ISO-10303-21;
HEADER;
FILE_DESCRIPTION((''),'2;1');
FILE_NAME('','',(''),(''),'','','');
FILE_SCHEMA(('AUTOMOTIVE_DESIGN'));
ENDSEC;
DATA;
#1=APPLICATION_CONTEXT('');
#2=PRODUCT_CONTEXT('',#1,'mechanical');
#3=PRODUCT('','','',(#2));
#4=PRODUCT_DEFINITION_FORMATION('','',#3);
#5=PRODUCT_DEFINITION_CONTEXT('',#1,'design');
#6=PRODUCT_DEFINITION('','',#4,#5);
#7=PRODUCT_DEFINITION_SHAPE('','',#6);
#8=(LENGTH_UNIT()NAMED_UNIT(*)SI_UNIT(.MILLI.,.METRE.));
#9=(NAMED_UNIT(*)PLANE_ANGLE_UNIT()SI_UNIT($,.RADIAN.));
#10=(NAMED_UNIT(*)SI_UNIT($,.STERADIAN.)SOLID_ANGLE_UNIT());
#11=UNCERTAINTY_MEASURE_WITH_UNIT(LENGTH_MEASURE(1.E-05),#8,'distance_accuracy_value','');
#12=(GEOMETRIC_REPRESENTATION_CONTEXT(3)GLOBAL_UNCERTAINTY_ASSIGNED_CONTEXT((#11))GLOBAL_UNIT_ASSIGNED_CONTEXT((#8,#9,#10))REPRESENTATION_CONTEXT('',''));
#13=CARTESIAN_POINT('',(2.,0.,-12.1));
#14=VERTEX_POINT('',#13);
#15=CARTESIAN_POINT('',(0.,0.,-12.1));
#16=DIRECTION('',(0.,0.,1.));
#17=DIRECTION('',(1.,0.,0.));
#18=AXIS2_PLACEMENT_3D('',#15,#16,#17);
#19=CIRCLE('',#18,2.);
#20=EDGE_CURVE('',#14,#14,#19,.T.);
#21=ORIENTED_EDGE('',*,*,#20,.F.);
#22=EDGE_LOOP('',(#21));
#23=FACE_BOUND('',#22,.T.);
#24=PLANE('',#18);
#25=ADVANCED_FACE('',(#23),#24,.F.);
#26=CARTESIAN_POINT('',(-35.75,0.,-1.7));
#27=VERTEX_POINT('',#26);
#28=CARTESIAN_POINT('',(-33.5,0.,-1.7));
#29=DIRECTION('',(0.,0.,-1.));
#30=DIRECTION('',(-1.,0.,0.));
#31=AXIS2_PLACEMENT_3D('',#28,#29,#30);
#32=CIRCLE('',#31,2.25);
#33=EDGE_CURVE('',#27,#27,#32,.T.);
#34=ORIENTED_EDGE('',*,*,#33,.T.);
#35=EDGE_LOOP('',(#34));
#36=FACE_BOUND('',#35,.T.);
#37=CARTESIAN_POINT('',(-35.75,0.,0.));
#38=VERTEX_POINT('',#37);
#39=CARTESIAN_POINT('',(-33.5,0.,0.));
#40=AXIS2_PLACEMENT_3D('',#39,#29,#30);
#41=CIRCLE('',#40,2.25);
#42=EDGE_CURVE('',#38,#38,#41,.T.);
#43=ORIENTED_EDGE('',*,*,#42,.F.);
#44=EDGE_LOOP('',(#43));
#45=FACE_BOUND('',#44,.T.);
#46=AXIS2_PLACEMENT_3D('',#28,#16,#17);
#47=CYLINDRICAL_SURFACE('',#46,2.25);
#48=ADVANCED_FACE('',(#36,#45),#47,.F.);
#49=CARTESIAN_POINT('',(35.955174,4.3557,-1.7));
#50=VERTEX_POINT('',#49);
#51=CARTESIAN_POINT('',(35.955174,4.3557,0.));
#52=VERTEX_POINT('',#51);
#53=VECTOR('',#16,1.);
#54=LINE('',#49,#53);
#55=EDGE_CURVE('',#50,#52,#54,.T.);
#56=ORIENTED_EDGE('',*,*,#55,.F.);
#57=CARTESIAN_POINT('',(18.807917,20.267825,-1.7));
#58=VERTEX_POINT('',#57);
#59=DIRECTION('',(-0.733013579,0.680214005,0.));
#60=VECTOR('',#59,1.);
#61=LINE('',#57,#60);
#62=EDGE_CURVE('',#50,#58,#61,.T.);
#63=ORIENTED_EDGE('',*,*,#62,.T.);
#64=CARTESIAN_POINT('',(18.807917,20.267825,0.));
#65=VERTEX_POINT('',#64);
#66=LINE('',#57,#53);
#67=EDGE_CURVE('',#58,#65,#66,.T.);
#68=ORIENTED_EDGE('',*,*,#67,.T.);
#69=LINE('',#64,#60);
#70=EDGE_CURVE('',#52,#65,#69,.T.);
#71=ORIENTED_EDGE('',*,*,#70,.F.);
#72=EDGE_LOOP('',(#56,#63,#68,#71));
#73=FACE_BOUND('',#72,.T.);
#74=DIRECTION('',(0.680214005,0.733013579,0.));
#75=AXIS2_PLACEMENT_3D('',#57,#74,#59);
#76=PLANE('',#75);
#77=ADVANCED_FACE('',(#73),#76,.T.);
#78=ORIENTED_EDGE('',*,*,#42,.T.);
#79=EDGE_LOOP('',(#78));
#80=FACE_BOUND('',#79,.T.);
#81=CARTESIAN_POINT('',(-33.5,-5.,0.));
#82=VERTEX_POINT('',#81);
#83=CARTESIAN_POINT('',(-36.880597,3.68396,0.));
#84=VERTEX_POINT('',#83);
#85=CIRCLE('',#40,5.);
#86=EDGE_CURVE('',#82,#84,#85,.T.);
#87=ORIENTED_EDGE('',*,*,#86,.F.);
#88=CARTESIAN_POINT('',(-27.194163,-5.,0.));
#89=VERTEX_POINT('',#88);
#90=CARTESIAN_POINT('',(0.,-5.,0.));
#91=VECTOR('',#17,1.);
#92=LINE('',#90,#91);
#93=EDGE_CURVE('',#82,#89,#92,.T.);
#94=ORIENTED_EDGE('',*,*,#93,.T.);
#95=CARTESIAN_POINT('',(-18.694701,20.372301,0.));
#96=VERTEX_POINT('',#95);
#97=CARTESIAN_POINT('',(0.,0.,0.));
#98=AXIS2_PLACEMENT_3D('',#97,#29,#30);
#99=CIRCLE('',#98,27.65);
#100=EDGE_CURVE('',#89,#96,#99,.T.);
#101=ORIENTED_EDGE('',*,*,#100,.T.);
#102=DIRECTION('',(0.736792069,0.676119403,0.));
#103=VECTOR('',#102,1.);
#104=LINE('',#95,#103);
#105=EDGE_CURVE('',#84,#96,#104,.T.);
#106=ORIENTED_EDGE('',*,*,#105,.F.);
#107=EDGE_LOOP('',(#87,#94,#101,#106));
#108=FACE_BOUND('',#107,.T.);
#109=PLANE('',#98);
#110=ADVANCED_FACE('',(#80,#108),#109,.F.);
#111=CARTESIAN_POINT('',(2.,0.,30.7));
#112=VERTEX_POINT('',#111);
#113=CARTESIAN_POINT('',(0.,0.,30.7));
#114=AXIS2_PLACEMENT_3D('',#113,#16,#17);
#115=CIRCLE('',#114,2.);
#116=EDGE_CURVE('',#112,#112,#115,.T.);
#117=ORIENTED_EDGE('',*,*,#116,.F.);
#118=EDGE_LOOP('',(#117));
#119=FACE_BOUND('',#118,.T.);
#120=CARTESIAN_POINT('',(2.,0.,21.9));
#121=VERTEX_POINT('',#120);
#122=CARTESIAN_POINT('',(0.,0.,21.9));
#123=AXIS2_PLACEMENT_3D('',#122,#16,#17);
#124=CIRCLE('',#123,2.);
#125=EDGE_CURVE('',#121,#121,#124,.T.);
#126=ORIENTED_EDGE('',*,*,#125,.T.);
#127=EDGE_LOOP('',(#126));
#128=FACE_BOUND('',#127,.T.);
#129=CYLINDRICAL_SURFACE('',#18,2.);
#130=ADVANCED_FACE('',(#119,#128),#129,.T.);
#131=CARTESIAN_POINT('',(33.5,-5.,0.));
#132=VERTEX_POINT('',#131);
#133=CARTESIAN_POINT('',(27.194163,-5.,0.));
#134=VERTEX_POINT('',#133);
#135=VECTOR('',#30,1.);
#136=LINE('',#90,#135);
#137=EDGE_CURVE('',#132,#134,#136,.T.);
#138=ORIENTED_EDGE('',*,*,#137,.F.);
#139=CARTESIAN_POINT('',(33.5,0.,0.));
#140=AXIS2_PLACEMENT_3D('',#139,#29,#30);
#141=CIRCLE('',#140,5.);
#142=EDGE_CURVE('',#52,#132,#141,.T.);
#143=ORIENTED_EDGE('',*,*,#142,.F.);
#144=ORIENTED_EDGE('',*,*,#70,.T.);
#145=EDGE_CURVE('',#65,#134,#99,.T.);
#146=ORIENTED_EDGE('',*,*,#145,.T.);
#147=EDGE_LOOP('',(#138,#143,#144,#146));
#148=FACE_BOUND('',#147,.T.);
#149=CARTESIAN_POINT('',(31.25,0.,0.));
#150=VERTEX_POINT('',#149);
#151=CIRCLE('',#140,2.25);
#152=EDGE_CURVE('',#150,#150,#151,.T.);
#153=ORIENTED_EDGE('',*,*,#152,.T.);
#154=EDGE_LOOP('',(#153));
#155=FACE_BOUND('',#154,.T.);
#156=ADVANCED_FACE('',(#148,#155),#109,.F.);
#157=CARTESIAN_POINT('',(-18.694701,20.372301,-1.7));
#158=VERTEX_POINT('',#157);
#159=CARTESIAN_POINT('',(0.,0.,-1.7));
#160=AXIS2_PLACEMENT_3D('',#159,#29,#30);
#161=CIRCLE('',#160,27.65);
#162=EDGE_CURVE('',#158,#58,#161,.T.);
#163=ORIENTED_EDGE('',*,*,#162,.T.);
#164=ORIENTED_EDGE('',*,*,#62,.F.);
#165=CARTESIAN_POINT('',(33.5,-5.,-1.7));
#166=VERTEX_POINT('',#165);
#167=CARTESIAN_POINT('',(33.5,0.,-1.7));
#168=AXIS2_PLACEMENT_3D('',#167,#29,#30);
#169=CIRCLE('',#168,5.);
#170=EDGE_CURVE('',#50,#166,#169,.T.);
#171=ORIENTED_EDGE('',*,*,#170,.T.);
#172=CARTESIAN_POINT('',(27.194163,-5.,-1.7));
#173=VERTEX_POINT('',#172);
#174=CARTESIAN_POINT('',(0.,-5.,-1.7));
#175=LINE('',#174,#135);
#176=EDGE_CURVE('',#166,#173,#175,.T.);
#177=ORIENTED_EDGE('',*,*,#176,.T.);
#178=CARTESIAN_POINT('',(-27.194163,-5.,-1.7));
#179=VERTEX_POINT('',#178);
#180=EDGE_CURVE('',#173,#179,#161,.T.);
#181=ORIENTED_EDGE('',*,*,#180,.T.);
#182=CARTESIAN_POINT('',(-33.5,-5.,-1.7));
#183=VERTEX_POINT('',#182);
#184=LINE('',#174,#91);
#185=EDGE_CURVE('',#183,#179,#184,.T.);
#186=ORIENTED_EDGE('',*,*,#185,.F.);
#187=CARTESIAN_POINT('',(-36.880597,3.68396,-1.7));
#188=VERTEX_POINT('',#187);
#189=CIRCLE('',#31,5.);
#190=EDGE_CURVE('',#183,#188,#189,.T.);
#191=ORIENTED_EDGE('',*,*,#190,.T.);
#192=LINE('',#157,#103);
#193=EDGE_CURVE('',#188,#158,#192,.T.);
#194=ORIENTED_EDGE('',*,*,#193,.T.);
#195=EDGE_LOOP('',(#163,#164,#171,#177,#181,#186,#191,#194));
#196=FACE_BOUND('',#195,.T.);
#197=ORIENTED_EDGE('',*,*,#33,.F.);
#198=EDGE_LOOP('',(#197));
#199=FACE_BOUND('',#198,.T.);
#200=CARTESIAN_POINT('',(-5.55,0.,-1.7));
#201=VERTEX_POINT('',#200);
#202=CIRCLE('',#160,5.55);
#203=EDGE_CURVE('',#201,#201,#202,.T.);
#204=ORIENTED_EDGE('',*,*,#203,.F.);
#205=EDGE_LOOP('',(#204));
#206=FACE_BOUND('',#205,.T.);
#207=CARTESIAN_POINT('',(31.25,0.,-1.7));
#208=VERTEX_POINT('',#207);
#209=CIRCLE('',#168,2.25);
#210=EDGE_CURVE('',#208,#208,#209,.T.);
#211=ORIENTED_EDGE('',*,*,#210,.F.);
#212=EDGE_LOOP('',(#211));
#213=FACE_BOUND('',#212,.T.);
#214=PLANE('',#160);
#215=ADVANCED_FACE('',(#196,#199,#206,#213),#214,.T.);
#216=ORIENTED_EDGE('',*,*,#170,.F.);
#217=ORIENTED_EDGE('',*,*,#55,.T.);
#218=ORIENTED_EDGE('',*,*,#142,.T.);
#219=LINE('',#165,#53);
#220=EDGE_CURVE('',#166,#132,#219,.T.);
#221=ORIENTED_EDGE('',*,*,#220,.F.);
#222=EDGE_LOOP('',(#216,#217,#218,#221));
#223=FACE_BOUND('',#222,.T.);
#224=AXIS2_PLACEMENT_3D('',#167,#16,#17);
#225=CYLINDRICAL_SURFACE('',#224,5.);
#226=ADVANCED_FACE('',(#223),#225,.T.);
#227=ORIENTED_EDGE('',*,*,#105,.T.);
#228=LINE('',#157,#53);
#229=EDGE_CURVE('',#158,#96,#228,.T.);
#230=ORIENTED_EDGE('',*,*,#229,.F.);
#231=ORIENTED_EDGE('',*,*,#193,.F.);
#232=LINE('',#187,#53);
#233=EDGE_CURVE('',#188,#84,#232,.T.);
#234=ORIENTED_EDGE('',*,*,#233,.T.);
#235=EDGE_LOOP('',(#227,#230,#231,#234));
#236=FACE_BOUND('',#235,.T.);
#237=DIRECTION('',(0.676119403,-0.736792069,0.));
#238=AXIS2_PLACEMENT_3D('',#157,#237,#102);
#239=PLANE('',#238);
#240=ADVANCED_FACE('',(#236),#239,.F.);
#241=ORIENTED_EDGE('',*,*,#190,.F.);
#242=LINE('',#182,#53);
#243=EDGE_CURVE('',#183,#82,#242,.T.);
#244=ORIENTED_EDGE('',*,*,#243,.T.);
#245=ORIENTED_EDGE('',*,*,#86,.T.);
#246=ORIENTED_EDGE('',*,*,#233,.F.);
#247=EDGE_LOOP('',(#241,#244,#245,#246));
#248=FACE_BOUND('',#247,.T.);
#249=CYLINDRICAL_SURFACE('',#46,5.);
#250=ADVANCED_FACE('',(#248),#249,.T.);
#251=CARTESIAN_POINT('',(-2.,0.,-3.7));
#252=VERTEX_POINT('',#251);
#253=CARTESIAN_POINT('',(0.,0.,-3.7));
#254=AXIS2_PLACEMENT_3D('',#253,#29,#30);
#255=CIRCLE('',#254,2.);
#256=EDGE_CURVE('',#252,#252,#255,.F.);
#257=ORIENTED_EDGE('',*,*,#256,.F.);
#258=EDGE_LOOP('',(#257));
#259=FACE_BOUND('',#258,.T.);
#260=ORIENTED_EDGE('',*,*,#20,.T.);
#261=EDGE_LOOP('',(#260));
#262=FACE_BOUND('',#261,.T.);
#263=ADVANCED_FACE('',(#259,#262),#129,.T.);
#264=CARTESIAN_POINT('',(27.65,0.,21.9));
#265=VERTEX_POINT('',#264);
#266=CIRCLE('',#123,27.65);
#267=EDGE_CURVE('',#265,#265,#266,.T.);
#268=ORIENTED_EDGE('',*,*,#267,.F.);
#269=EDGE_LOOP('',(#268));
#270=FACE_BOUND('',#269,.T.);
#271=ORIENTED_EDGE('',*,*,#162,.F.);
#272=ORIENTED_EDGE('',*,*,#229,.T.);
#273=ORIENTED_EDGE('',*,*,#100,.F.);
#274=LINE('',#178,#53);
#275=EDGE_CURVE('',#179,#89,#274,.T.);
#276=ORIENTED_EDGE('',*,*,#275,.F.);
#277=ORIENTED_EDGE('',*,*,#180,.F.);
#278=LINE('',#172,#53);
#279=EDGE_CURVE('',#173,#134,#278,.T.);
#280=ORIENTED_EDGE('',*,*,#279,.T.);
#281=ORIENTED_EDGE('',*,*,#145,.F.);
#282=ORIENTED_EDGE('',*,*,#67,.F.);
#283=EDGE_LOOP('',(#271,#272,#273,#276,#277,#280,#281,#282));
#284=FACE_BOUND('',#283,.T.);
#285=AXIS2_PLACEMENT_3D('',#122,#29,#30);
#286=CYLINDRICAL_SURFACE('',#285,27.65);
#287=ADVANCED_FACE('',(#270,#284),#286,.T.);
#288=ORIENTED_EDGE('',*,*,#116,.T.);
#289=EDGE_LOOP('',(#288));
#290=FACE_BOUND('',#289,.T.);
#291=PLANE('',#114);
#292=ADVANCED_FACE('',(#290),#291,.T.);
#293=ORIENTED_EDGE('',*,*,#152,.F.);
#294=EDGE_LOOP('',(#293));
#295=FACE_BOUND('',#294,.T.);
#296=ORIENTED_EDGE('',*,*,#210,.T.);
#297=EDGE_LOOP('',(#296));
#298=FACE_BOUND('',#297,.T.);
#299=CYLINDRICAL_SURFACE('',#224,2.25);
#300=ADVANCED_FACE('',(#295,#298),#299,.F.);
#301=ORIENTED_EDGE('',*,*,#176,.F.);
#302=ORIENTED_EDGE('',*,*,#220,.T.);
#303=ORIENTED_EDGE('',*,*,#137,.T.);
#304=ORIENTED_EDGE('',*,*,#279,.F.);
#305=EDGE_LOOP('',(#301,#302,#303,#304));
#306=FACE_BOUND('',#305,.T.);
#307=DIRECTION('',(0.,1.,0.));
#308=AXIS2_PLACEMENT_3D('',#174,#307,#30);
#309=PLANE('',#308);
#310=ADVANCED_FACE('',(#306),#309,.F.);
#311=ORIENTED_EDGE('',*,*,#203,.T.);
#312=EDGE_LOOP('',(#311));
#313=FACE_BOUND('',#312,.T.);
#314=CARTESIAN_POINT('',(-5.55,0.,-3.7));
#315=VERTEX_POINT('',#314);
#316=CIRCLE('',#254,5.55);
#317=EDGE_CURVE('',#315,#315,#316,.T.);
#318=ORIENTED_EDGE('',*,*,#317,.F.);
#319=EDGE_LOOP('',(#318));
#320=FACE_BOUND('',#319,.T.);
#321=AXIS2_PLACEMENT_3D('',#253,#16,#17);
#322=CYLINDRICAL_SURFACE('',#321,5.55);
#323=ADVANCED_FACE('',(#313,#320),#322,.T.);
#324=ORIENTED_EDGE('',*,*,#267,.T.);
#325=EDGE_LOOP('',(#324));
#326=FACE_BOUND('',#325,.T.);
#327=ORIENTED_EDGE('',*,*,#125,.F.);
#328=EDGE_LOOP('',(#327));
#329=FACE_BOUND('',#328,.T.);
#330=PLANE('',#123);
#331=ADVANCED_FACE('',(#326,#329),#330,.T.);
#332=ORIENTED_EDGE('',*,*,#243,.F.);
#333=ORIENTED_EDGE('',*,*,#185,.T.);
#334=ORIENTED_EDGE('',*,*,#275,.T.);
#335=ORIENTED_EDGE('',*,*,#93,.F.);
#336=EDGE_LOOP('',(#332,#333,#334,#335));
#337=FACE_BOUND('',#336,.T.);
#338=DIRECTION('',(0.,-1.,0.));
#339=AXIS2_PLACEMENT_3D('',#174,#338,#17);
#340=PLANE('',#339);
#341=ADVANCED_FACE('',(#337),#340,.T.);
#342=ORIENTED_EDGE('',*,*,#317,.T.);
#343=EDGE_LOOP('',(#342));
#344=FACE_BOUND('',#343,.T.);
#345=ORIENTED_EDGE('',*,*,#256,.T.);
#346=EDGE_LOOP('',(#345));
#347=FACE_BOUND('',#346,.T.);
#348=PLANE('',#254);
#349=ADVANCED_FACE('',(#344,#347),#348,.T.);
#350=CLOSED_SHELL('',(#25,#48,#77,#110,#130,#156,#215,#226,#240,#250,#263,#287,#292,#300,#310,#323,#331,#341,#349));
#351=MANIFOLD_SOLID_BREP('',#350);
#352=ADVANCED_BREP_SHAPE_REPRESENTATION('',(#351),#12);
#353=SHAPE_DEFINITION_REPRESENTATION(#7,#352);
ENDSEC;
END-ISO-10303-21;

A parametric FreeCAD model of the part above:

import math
import FreeCAD as App
import Part
import Sketcher
from FreeCAD import Vector

doc = App.newDocument("Part")
body = doc.addObject("PartDesign::Body", "Body")

# Sketch on XY plane
sketch1 = body.newObject("Sketcher::SketchObject", "Sketch")
sketch1.AttachmentSupport = (doc.getObject("XY_Plane"), [""])
sketch1.MapMode = "FlatFace"
sketch1.addGeometry(Part.Circle(Vector(0, 0, 0), Vector(0, 0, 1), 28), False)
sketch1.addConstraint(Sketcher.Constraint("Coincident", 0, 3, -1, 1))
sketch1.addConstraint(Sketcher.Constraint("Diameter", 0, 55.3))
pad1 = body.newObject("PartDesign::Pad", "Pad")
pad1.Profile = sketch1
pad1.Length = 21.9

# Sketch on XY plane
sketch2 = body.newObject("Sketcher::SketchObject", "Sketch001")
sketch2.AttachmentSupport = (doc.getObject("XY_Plane"), [""])
sketch2.MapMode = "FlatFace"
sketch2.AttachmentOffset = App.Placement(Vector(0, 0, 21.9), App.Rotation())
sketch2.addGeometry(Part.Circle(Vector(0, 0, 0), Vector(0, 0, 1), 2), False)
sketch2.addConstraint(Sketcher.Constraint("Coincident", 0, 3, -1, 1))
sketch2.addConstraint(Sketcher.Constraint("Diameter", 0, 4.0))
pad2 = body.newObject("PartDesign::Pad", "Pad001")
pad2.Profile = sketch2
pad2.Type = "TwoLengths"
pad2.Length = 8.8
pad2.Length2 = 34

# Sketch on XY plane
sketch3 = body.newObject("Sketcher::SketchObject", "Sketch002")
sketch3.AttachmentSupport = (doc.getObject("XY_Plane"), [""])
sketch3.MapMode = "FlatFace"
sketch3.AttachmentOffset = App.Placement(Vector(0, 0, -1.7), App.Rotation())
sketch3.addGeometry(Part.LineSegment(Vector(-27.2, -5, 0), Vector(-33.5, -5, 0)), False)
sketch3.addGeometry(Part.ArcOfCircle(Part.Circle(Vector(-33.5, 0, 0), Vector(0, 0, 1), 5), math.radians(133), math.radians(270)), False)
sketch3.addGeometry(Part.LineSegment(Vector(-36.9, 3.7, 0), Vector(-18.7, 20.4, 0)), False)
sketch3.addGeometry(Part.ArcOfCircle(Part.Circle(Vector(0, 0, 0), Vector(0, 0, 1), 27.7), math.radians(47), math.radians(133)), False)
sketch3.addGeometry(Part.LineSegment(Vector(18.8, 20.3, 0), Vector(36, 4.4, 0)), False)
sketch3.addGeometry(Part.ArcOfCircle(Part.Circle(Vector(33.5, 0, 0), Vector(0, 0, 1), 5), math.radians(-90), math.radians(61)), False)
sketch3.addGeometry(Part.LineSegment(Vector(33.5, -5, 0), Vector(27.2, -5, 0)), False)
sketch3.addGeometry(Part.ArcOfCircle(Part.Circle(Vector(0, 0, 0), Vector(0, 0, 1), 27.6), math.radians(-170), math.radians(-10)), False)
sketch3.addGeometry(Part.Circle(Vector(33.5, 0, 0), Vector(0, 0, 1), 2.2), False)
sketch3.addGeometry(Part.Circle(Vector(0, 0, 0), Vector(0, 0, 1), 2), False)
sketch3.addGeometry(Part.Circle(Vector(-33.5, 0, 0), Vector(0, 0, 1), 2.2), False)
sketch3.addConstraint(Sketcher.Constraint("Tangent", 0, 2, 1, 2))
sketch3.addConstraint(Sketcher.Constraint("Tangent", 1, 1, 2, 1))
sketch3.addConstraint(Sketcher.Constraint("Tangent", 2, 2, 3, 2))
sketch3.addConstraint(Sketcher.Constraint("Tangent", 3, 1, 4, 1))
sketch3.addConstraint(Sketcher.Constraint("Coincident", 4, 2, 5, 2))
sketch3.addConstraint(Sketcher.Constraint("Tangent", 5, 1, 6, 1))
sketch3.addConstraint(Sketcher.Constraint("Coincident", 6, 2, 7, 2))
sketch3.addConstraint(Sketcher.Constraint("Coincident", 7, 1, 0, 1))
sketch3.addConstraint(Sketcher.Constraint("Horizontal", 0))
sketch3.addConstraint(Sketcher.Constraint("Horizontal", 6))
sketch3.addConstraint(Sketcher.Constraint("Coincident", 3, 3, -1, 1))
sketch3.addConstraint(Sketcher.Constraint("Coincident", 7, 3, -1, 1))
sketch3.addConstraint(Sketcher.Constraint("Coincident", 9, 3, -1, 1))
sketch3.addConstraint(Sketcher.Constraint("Coincident", 8, 3, 5, 3))
sketch3.addConstraint(Sketcher.Constraint("Coincident", 10, 3, 1, 3))
sketch3.addConstraint(Sketcher.Constraint("Equal", 1, 5))
sketch3.addConstraint(Sketcher.Constraint("Equal", 3, 7))
sketch3.addConstraint(Sketcher.Constraint("Equal", 8, 10))
sketch3.addConstraint(Sketcher.Constraint("Symmetric", 1, 3, 5, 3, -1, 1))
sketch3.addConstraint(Sketcher.Constraint("PointOnObject", 1, 3, -1))
sketch3.addConstraint(Sketcher.Constraint("Diameter", 9, 4.0))
sketch3.addConstraint(Sketcher.Constraint("Radius", 1, 5.0))
sketch3.addConstraint(Sketcher.Constraint("Diameter", 8, 4.5))
sketch3.addConstraint(Sketcher.Constraint("Radius", 3, 27.65))
sketch3.addConstraint(Sketcher.Constraint("DistanceX", 1, 3, 5, 3, 67.0))
sketch3.addConstraint(Sketcher.Constraint("DistanceY", -1, 1, 4, 2, 4.3557))
pad3 = body.newObject("PartDesign::Pad", "Pad002")
pad3.Profile = sketch3
pad3.Length = 1.7

# Sketch on XY plane
sketch4 = body.newObject("Sketcher::SketchObject", "Sketch003")
sketch4.AttachmentSupport = (doc.getObject("XY_Plane"), [""])
sketch4.MapMode = "FlatFace"
sketch4.AttachmentOffset = App.Placement(Vector(0, 0, -1.7), App.Rotation())
sketch4.addGeometry(Part.Circle(Vector(0, 0, 0), Vector(0, 0, 1), 6), False)
sketch4.addConstraint(Sketcher.Constraint("Coincident", 0, 3, -1, 1))
sketch4.addConstraint(Sketcher.Constraint("Diameter", 0, 11.1))
pad4 = body.newObject("PartDesign::Pad", "Pad003")
pad4.Profile = sketch4
pad4.Length = 2
pad4.Reversed = True

doc.recompute()
